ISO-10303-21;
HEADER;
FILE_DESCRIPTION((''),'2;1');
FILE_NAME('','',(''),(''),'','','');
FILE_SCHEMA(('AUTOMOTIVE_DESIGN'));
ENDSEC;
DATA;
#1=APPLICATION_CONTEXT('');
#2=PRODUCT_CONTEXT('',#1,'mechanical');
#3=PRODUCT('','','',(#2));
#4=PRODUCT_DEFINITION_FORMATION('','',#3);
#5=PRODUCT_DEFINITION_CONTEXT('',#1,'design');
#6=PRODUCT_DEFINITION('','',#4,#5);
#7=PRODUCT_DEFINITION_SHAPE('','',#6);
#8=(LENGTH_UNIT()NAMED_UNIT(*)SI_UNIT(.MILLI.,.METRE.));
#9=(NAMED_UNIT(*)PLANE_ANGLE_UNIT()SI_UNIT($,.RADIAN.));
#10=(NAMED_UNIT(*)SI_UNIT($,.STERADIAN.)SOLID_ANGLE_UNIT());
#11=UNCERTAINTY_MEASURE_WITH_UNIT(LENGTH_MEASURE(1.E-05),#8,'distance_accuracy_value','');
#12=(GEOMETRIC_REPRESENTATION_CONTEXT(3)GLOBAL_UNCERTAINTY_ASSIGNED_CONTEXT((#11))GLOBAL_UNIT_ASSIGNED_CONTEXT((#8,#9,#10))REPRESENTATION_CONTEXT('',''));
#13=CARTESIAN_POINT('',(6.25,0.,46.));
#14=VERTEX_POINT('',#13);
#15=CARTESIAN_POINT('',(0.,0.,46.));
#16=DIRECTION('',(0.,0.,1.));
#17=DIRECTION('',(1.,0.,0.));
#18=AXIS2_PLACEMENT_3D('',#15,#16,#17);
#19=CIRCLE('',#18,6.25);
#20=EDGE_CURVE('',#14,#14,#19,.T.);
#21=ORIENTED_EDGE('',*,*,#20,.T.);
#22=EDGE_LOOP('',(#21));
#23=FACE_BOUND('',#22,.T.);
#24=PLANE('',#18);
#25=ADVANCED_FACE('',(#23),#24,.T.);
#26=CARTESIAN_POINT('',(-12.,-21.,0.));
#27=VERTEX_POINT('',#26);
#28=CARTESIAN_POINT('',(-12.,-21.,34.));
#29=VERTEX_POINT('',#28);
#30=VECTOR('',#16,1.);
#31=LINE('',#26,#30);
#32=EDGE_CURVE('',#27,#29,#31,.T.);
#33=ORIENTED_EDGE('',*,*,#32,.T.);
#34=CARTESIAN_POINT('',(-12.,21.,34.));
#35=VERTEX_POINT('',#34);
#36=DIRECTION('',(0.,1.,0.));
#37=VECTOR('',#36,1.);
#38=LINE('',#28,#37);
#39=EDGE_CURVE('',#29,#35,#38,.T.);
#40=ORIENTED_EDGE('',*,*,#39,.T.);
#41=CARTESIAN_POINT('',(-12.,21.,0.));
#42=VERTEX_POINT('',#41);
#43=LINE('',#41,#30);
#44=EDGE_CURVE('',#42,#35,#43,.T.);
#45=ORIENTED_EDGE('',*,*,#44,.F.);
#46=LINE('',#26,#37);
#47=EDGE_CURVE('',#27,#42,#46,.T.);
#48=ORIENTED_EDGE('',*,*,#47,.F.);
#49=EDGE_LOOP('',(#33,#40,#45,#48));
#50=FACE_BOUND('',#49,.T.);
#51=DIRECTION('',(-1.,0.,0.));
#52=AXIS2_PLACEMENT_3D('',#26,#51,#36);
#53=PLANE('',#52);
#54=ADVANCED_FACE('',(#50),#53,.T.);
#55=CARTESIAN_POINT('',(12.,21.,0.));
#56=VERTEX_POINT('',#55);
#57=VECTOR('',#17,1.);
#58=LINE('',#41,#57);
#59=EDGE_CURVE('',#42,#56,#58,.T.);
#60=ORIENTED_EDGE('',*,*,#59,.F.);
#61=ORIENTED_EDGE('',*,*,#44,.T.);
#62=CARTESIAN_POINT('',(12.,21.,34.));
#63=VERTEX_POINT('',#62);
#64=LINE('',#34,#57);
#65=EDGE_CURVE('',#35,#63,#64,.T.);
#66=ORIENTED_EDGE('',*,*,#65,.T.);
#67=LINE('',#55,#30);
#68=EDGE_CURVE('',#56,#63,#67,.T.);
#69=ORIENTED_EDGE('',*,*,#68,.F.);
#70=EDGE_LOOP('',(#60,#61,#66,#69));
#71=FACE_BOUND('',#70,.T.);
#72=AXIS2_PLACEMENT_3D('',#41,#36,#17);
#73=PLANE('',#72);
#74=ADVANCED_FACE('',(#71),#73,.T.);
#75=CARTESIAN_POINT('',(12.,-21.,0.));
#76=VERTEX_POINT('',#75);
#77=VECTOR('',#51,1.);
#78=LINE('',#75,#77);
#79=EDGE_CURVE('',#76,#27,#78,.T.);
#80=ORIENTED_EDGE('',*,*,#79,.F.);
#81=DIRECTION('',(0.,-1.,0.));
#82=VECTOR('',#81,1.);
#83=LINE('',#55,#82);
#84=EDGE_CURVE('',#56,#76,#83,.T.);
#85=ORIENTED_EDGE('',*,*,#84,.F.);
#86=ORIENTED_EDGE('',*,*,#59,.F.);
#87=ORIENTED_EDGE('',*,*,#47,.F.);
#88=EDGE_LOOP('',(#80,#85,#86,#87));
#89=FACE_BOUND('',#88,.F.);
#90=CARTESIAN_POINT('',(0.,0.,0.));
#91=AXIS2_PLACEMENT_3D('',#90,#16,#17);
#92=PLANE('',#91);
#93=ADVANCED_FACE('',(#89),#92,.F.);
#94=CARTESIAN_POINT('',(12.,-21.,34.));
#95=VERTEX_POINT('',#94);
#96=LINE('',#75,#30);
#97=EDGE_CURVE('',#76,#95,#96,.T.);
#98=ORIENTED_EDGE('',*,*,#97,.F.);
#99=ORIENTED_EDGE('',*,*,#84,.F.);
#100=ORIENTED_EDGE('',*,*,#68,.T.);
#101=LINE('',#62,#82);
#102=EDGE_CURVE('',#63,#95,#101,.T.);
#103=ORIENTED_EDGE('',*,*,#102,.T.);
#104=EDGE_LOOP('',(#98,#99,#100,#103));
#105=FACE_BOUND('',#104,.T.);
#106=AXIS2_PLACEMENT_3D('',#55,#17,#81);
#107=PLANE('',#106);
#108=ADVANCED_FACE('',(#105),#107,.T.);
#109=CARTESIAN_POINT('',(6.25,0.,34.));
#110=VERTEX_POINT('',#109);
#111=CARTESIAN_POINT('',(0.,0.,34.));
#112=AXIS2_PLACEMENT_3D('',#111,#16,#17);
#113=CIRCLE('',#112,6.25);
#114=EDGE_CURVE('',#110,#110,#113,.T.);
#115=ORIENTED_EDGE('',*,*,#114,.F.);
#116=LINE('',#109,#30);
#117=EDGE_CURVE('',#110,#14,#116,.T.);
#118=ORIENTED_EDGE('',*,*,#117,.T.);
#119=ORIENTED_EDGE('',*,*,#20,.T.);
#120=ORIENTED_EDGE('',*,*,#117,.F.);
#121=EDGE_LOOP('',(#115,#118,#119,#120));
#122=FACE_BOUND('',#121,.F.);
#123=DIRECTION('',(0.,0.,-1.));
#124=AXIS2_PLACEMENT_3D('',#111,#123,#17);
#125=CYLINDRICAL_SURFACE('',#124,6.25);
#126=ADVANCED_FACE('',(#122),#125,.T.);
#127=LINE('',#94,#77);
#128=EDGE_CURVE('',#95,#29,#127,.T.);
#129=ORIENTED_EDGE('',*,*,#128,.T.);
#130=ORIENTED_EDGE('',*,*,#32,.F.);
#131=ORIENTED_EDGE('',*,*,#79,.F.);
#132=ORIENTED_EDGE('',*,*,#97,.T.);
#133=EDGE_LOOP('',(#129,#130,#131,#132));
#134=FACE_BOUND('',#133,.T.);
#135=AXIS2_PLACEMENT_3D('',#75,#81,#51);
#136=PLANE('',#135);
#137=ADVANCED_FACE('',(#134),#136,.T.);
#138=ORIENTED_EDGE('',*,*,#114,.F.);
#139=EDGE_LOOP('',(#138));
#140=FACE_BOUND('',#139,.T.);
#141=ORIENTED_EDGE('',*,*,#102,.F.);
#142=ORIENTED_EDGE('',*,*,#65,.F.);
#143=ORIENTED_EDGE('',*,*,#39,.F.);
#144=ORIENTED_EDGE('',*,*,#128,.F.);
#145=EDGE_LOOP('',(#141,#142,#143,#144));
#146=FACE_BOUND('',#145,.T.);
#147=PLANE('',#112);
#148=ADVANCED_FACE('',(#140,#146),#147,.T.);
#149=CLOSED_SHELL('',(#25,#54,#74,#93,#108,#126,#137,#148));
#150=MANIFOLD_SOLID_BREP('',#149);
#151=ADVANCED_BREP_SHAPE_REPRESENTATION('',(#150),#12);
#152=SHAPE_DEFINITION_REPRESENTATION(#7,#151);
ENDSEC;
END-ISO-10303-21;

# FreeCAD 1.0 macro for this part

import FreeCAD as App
import Part
import Sketcher


def add_polygon(sketch, points):
    """Adds a closed chain of lines whose ends are joined by coincident constraints."""
    first, n = sketch.GeometryCount, len(points)
    for a, b in zip(points, points[1:] + points[:1]):
        sketch.addGeometry(Part.LineSegment(App.Vector(*a, 0), App.Vector(*b, 0)), False)
    for i in range(n):
        sketch.addConstraint(Sketcher.Constraint("Coincident", first + i, 2, first + (i + 1) % n, 1))

doc = App.newDocument("Part")
body = doc.addObject("PartDesign::Body", "Body")

# Sketch on XY plane
sketch1 = body.newObject("Sketcher::SketchObject", "Sketch")
sketch1.AttachmentSupport = (doc.getObject("XY_Plane"), [""])
sketch1.MapMode = "FlatFace"
add_polygon(sketch1, [(12, 21), (-12, 21), (-12, -21), (12, -21)])  # lines 0-3
sketch1.addConstraint(Sketcher.Constraint("Horizontal", 0))
sketch1.addConstraint(Sketcher.Constraint("Vertical", 1))
sketch1.addConstraint(Sketcher.Constraint("Horizontal", 2))
sketch1.addConstraint(Sketcher.Constraint("Vertical", 3))
sketch1.addConstraint(Sketcher.Constraint("Symmetric", 0, 2, 2, 2, -1, 1))
sketch1.addConstraint(Sketcher.Constraint("DistanceX", 0, 2, 0, 1, 24.0))
sketch1.addConstraint(Sketcher.Constraint("DistanceY", 1, 2, 1, 1, 42.0))
pad1 = body.newObject("PartDesign::Pad", "Pad")
pad1.Profile = sketch1
pad1.Length = 34

# Sketch on XY plane
sketch2 = body.newObject("Sketcher::SketchObject", "Sketch001")
sketch2.AttachmentSupport = (doc.getObject("XY_Plane"), [""])
sketch2.MapMode = "FlatFace"
sketch2.AttachmentOffset = App.Placement(App.Vector(0, 0, 34), App.Rotation())
sketch2.addGeometry(Part.Circle(App.Vector(0, 0, 0), App.Vector(0, 0, 1), 6), False)
sketch2.addConstraint(Sketcher.Constraint("Coincident", 0, 3, -1, 1))
sketch2.addConstraint(Sketcher.Constraint("Diameter", 0, 12.5))
pad2 = body.newObject("PartDesign::Pad", "Pad001")
pad2.Profile = sketch2
pad2.Length = 12

doc.recompute()
